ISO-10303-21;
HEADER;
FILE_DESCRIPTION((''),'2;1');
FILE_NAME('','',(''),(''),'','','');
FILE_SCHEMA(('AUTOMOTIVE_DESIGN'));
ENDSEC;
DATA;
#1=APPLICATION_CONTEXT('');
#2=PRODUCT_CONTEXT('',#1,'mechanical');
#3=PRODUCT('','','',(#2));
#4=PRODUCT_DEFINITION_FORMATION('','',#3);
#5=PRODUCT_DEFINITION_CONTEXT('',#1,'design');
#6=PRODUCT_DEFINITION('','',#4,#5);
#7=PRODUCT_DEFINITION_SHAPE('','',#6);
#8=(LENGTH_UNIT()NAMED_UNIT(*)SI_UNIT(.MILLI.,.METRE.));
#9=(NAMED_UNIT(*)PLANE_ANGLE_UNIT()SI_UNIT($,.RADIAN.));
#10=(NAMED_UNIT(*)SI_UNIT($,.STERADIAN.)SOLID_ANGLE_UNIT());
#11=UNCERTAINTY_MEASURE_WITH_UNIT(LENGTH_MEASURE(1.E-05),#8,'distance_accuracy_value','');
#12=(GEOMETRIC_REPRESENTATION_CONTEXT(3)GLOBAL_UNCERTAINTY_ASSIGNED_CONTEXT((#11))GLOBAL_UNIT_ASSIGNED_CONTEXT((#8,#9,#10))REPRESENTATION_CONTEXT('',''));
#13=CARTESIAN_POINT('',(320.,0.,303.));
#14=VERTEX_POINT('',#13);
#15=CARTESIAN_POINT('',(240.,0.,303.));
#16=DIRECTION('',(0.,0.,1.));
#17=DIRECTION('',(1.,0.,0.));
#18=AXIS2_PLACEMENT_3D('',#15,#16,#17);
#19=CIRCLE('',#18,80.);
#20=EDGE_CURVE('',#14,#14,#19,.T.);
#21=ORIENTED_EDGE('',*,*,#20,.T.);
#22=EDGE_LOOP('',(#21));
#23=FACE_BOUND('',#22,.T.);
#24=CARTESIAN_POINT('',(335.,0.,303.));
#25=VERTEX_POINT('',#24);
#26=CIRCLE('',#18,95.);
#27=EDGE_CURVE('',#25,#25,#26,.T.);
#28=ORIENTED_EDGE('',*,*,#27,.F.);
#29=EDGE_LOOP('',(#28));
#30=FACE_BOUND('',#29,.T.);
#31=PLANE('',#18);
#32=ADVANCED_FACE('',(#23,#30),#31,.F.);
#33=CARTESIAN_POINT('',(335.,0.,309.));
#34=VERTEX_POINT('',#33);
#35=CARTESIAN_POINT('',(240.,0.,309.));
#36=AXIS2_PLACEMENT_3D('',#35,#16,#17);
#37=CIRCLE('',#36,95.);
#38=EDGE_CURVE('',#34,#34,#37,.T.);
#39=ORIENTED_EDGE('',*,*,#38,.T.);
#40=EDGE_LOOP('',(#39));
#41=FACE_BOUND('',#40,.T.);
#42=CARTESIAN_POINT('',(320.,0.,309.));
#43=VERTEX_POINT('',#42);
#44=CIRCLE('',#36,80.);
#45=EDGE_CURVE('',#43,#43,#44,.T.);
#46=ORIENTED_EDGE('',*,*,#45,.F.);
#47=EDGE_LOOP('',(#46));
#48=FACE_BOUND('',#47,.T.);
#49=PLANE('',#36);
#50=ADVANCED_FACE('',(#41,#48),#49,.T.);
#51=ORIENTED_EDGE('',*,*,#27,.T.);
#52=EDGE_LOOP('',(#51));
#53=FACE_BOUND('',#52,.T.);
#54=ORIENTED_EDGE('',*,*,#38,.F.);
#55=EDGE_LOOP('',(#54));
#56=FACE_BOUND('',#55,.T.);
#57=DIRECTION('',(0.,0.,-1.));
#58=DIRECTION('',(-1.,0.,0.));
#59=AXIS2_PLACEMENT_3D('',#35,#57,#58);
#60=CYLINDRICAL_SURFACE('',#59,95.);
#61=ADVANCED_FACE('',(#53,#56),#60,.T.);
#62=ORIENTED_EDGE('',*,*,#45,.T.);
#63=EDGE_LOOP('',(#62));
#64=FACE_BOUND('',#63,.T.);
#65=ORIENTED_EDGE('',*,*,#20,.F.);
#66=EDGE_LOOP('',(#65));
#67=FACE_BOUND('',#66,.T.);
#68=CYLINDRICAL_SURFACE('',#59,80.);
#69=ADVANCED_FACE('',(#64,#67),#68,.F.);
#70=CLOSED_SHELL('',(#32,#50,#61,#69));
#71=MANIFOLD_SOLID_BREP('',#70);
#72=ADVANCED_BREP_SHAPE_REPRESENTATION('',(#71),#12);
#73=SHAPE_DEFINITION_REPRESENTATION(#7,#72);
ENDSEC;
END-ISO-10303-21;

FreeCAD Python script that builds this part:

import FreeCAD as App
import Part
import Sketcher

doc = App.newDocument("Part")
body = doc.addObject("PartDesign::Body", "Body")

# Sketch on XY plane
sketch1 = body.newObject("Sketcher::SketchObject", "Sketch")
sketch1.AttachmentSupport = (doc.getObject("XY_Plane"), [""])
sketch1.MapMode = "FlatFace"
sketch1.AttachmentOffset = App.Placement(App.Vector(0, 0, 303), App.Rotation())
sketch1.addGeometry([
    Part.Circle(App.Vector(240, 0, 0), App.Vector(0, 0, 1), 95),
    Part.Circle(App.Vector(240, 0, 0), App.Vector(0, 0, 1), 80),
], False)
sketch1.addConstraint([
    Sketcher.Constraint("Coincident", 1, 3, 0, 3),
    Sketcher.Constraint("PointOnObject", 0, 3, -1),
    Sketcher.Constraint("Diameter", 0, 190.0),
    Sketcher.Constraint("Diameter", 1, 160.0),
    Sketcher.Constraint("DistanceX", -1, 1, 0, 3, 240.0),
])
pad1 = body.newObject("PartDesign::Pad", "Pad")
pad1.Profile = sketch1
pad1.Length = 6

doc.recompute()
